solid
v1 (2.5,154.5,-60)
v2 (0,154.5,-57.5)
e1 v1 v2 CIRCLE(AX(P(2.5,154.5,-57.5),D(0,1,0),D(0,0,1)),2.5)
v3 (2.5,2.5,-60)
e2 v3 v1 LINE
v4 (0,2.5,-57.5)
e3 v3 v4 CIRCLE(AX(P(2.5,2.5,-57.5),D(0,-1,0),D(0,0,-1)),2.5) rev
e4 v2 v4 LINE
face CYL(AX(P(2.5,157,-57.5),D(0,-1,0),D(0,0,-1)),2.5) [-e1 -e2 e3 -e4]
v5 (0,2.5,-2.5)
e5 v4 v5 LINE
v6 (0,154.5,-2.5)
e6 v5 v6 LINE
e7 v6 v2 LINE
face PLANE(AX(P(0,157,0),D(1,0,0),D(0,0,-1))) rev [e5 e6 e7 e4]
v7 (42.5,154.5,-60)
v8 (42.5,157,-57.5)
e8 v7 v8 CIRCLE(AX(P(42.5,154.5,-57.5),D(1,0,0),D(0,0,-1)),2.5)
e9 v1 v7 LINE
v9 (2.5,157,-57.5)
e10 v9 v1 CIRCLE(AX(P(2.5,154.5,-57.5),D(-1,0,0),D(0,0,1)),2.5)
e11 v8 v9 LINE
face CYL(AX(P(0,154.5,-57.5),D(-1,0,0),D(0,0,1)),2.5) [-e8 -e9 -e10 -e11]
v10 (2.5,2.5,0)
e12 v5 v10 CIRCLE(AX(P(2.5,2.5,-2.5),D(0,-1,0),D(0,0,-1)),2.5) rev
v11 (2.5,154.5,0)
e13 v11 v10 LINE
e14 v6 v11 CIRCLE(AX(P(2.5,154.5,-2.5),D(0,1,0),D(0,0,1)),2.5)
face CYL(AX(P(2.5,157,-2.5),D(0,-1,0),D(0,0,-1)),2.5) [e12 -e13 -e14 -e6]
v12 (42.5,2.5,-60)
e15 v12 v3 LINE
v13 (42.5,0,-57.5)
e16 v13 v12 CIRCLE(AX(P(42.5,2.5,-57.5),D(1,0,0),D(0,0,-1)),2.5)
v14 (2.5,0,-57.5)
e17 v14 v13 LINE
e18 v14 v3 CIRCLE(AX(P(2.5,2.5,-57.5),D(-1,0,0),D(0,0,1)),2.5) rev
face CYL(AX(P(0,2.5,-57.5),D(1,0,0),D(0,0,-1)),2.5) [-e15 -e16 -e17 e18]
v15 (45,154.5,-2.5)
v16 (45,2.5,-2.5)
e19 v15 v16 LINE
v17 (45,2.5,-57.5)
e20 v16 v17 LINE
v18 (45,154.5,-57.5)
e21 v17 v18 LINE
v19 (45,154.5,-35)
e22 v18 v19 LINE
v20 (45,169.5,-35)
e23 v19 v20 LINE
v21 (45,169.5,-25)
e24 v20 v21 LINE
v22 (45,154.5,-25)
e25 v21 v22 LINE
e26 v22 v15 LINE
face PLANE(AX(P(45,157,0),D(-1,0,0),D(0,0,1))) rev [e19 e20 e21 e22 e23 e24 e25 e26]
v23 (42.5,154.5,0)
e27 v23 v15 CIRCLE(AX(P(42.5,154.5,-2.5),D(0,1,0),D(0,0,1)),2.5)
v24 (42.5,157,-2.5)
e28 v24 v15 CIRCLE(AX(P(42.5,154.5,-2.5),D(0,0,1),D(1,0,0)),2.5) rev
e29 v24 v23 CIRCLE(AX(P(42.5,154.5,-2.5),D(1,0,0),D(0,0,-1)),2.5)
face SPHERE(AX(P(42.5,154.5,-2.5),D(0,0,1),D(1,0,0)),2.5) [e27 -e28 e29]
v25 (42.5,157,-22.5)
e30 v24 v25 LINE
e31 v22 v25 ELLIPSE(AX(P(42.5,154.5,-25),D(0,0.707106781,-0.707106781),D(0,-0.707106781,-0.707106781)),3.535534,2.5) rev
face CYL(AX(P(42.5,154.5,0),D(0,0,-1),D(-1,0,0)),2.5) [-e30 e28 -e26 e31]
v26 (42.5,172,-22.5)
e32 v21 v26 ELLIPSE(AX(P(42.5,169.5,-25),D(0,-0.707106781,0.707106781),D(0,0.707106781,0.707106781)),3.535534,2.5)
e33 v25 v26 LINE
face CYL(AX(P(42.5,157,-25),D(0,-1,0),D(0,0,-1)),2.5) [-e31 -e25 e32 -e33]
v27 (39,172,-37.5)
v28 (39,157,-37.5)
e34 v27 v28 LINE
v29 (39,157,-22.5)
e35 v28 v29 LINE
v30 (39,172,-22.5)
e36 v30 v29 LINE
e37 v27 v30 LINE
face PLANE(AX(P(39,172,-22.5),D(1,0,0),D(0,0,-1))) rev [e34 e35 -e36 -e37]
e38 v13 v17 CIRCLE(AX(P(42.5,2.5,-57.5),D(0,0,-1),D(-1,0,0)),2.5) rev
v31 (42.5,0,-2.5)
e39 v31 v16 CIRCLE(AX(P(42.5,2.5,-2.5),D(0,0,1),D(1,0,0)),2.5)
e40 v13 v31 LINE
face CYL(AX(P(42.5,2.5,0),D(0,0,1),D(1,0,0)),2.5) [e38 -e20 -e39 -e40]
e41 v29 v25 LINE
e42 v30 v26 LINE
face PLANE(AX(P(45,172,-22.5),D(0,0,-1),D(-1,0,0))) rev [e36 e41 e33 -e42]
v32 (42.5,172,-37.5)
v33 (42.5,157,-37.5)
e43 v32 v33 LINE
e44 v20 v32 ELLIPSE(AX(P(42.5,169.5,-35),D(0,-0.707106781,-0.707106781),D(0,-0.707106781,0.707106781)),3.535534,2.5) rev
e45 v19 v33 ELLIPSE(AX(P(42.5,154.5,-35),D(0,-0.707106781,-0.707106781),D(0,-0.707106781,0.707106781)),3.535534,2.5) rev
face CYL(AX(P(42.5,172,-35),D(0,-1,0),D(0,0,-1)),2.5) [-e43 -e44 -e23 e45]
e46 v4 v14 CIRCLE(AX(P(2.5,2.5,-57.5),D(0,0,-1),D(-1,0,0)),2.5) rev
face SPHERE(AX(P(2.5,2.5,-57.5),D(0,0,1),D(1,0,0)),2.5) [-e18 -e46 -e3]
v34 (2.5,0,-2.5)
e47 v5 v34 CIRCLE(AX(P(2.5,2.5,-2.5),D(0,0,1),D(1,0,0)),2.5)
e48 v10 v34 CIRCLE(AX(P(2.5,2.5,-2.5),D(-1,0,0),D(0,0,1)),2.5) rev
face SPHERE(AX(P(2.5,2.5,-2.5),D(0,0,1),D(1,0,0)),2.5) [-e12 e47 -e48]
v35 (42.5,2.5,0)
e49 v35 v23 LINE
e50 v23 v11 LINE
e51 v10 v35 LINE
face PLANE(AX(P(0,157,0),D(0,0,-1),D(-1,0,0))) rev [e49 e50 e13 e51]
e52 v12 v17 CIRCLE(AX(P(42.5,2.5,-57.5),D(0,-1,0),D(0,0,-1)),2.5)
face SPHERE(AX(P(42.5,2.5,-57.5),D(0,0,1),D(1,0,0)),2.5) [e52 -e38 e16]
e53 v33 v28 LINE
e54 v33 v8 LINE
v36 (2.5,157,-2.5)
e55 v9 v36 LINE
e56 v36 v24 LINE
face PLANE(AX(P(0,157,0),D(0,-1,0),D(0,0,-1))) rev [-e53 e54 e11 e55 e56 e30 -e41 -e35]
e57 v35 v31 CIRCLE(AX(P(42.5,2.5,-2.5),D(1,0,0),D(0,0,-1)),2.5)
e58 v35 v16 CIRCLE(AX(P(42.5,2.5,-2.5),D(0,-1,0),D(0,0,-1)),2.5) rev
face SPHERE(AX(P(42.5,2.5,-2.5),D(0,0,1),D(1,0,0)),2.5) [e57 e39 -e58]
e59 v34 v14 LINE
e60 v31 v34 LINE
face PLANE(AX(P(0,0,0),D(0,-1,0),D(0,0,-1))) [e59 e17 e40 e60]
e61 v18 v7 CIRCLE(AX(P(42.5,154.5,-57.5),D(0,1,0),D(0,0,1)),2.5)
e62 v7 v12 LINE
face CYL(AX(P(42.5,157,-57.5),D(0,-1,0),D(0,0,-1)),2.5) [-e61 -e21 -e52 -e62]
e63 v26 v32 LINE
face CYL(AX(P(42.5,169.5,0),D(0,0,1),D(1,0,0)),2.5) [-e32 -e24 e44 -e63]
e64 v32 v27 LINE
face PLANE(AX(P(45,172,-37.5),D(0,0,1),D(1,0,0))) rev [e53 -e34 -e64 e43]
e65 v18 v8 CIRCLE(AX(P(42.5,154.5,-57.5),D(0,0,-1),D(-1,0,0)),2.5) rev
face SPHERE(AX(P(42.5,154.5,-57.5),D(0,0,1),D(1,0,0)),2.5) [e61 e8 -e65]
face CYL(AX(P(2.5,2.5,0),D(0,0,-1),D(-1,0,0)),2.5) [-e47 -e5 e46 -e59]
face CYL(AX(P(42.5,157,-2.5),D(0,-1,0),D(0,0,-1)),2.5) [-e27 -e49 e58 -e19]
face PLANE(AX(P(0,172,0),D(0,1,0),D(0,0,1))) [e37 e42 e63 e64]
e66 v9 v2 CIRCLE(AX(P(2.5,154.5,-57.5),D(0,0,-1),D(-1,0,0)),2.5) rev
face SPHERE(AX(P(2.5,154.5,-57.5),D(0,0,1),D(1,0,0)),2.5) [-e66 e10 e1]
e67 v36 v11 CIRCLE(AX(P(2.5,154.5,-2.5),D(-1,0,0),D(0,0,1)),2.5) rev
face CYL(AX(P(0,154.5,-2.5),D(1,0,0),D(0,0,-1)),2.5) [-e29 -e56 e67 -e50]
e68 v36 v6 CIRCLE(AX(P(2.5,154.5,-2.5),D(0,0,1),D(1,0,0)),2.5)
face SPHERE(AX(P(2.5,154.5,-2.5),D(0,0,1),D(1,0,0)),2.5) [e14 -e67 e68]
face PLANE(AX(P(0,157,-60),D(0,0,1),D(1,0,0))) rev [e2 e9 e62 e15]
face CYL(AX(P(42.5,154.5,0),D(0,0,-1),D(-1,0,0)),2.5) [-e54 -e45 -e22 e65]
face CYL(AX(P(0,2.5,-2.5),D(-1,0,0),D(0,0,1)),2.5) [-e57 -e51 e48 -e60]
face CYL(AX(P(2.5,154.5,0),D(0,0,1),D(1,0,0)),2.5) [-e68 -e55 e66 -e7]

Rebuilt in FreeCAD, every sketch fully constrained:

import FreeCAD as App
import Part
import Sketcher
from FreeCAD import Vector


def edges_at(feature, points):
    """Names of the edges that pass closest to the given points."""
    edges = feature.Shape.Edges
    near = lambda p: min(range(len(edges)), key=lambda i: edges[i].distToShape(Part.Vertex(*p))[0])
    return sorted({f"Edge{near(p) + 1}" for p in points})


def add_polygon(sketch, points):
    """Adds a closed chain of lines whose ends are joined by coincident constraints."""
    first, n = sketch.GeometryCount, len(points)
    for a, b in zip(points, points[1:] + points[:1]):
        sketch.addGeometry(Part.LineSegment(App.Vector(*a, 0), App.Vector(*b, 0)), False)
    for i in range(n):
        sketch.addConstraint(Sketcher.Constraint("Coincident", first + i, 2, first + (i + 1) % n, 1))

doc = App.newDocument("Part")
body = doc.addObject("PartDesign::Body", "Body")

sketch1 = body.newObject("Sketcher::SketchObject", "Sketch")
sketch1.AttachmentSupport = (doc.getObject("XZ_Plane"), [""])
sketch1.MapMode = "FlatFace"
add_polygon(sketch1, [(0, -60), (0, 0), (45, 0), (45, -60)])
sketch1.addConstraint(Sketcher.Constraint("Vertical", 0))
sketch1.addConstraint(Sketcher.Constraint("Horizontal", 1))
sketch1.addConstraint(Sketcher.Constraint("Vertical", 2))
sketch1.addConstraint(Sketcher.Constraint("Horizontal", 3))
sketch1.addConstraint(Sketcher.Constraint("Coincident", 0, 2, -1, 1))
sketch1.addConstraint(Sketcher.Constraint("DistanceX", 1, 1, 1, 2, 45.0))
sketch1.addConstraint(Sketcher.Constraint("DistanceY", 0, 1, 0, 2, 60.0))
pad1 = body.newObject("PartDesign::Pad", "Pad")
pad1.Profile = sketch1
pad1.Length = 157
pad1.Reversed = True

sketch2 = body.newObject("Sketcher::SketchObject", "Sketch001")
sketch2.AttachmentSupport = (doc.getObject("XZ_Plane"), [""])
sketch2.MapMode = "FlatFace"
sketch2.AttachmentOffset = App.Placement(Vector(0, 0, -157), App.Rotation())
add_polygon(sketch2, [(39, -38), (39, -22), (45, -22), (45, -38)])
sketch2.addConstraint(Sketcher.Constraint("Vertical", 0))
sketch2.addConstraint(Sketcher.Constraint("Horizontal", 1))
sketch2.addConstraint(Sketcher.Constraint("Vertical", 2))
sketch2.addConstraint(Sketcher.Constraint("Horizontal", 3))
sketch2.addConstraint(Sketcher.Constraint("DistanceX", 1, 1, 1, 2, 6.0))
sketch2.addConstraint(Sketcher.Constraint("DistanceY", 0, 1, 0, 2, 15.0))
sketch2.addConstraint(Sketcher.Constraint("DistanceX", -1, 1, 0, 2, 39.0))
sketch2.addConstraint(Sketcher.Constraint("DistanceY", 0, 2, -1, 1, 22.5))
pad2 = body.newObject("PartDesign::Pad", "Pad001")
pad2.Profile = sketch2
pad2.Length = 15
pad2.Reversed = True
doc.recompute()

fillet = body.newObject("PartDesign::Fillet", "Fillet")
fillet.Base = (pad2, edges_at(pad2, [
    (45, 157, -11.25),
    (45, 157, -48.75),
    (45, 164.5, -22.5),
    (45, 164.5, -37.5),
    (22.5, 157, -60),
    (45, 172, -30),
    (0, 157, -30),
    (22.5, 0, -60),
    (45, 0, -30),
    (22.5, 0, 0),
    (0, 0, -30),
    (0, 78.5, -60),
    (45, 78.5, -60),
    (45, 78.5, 0),
    (0, 78.5, 0),
    (22.5, 157, 0),
]))
fillet.Radius = 2.5

doc.recompute()
